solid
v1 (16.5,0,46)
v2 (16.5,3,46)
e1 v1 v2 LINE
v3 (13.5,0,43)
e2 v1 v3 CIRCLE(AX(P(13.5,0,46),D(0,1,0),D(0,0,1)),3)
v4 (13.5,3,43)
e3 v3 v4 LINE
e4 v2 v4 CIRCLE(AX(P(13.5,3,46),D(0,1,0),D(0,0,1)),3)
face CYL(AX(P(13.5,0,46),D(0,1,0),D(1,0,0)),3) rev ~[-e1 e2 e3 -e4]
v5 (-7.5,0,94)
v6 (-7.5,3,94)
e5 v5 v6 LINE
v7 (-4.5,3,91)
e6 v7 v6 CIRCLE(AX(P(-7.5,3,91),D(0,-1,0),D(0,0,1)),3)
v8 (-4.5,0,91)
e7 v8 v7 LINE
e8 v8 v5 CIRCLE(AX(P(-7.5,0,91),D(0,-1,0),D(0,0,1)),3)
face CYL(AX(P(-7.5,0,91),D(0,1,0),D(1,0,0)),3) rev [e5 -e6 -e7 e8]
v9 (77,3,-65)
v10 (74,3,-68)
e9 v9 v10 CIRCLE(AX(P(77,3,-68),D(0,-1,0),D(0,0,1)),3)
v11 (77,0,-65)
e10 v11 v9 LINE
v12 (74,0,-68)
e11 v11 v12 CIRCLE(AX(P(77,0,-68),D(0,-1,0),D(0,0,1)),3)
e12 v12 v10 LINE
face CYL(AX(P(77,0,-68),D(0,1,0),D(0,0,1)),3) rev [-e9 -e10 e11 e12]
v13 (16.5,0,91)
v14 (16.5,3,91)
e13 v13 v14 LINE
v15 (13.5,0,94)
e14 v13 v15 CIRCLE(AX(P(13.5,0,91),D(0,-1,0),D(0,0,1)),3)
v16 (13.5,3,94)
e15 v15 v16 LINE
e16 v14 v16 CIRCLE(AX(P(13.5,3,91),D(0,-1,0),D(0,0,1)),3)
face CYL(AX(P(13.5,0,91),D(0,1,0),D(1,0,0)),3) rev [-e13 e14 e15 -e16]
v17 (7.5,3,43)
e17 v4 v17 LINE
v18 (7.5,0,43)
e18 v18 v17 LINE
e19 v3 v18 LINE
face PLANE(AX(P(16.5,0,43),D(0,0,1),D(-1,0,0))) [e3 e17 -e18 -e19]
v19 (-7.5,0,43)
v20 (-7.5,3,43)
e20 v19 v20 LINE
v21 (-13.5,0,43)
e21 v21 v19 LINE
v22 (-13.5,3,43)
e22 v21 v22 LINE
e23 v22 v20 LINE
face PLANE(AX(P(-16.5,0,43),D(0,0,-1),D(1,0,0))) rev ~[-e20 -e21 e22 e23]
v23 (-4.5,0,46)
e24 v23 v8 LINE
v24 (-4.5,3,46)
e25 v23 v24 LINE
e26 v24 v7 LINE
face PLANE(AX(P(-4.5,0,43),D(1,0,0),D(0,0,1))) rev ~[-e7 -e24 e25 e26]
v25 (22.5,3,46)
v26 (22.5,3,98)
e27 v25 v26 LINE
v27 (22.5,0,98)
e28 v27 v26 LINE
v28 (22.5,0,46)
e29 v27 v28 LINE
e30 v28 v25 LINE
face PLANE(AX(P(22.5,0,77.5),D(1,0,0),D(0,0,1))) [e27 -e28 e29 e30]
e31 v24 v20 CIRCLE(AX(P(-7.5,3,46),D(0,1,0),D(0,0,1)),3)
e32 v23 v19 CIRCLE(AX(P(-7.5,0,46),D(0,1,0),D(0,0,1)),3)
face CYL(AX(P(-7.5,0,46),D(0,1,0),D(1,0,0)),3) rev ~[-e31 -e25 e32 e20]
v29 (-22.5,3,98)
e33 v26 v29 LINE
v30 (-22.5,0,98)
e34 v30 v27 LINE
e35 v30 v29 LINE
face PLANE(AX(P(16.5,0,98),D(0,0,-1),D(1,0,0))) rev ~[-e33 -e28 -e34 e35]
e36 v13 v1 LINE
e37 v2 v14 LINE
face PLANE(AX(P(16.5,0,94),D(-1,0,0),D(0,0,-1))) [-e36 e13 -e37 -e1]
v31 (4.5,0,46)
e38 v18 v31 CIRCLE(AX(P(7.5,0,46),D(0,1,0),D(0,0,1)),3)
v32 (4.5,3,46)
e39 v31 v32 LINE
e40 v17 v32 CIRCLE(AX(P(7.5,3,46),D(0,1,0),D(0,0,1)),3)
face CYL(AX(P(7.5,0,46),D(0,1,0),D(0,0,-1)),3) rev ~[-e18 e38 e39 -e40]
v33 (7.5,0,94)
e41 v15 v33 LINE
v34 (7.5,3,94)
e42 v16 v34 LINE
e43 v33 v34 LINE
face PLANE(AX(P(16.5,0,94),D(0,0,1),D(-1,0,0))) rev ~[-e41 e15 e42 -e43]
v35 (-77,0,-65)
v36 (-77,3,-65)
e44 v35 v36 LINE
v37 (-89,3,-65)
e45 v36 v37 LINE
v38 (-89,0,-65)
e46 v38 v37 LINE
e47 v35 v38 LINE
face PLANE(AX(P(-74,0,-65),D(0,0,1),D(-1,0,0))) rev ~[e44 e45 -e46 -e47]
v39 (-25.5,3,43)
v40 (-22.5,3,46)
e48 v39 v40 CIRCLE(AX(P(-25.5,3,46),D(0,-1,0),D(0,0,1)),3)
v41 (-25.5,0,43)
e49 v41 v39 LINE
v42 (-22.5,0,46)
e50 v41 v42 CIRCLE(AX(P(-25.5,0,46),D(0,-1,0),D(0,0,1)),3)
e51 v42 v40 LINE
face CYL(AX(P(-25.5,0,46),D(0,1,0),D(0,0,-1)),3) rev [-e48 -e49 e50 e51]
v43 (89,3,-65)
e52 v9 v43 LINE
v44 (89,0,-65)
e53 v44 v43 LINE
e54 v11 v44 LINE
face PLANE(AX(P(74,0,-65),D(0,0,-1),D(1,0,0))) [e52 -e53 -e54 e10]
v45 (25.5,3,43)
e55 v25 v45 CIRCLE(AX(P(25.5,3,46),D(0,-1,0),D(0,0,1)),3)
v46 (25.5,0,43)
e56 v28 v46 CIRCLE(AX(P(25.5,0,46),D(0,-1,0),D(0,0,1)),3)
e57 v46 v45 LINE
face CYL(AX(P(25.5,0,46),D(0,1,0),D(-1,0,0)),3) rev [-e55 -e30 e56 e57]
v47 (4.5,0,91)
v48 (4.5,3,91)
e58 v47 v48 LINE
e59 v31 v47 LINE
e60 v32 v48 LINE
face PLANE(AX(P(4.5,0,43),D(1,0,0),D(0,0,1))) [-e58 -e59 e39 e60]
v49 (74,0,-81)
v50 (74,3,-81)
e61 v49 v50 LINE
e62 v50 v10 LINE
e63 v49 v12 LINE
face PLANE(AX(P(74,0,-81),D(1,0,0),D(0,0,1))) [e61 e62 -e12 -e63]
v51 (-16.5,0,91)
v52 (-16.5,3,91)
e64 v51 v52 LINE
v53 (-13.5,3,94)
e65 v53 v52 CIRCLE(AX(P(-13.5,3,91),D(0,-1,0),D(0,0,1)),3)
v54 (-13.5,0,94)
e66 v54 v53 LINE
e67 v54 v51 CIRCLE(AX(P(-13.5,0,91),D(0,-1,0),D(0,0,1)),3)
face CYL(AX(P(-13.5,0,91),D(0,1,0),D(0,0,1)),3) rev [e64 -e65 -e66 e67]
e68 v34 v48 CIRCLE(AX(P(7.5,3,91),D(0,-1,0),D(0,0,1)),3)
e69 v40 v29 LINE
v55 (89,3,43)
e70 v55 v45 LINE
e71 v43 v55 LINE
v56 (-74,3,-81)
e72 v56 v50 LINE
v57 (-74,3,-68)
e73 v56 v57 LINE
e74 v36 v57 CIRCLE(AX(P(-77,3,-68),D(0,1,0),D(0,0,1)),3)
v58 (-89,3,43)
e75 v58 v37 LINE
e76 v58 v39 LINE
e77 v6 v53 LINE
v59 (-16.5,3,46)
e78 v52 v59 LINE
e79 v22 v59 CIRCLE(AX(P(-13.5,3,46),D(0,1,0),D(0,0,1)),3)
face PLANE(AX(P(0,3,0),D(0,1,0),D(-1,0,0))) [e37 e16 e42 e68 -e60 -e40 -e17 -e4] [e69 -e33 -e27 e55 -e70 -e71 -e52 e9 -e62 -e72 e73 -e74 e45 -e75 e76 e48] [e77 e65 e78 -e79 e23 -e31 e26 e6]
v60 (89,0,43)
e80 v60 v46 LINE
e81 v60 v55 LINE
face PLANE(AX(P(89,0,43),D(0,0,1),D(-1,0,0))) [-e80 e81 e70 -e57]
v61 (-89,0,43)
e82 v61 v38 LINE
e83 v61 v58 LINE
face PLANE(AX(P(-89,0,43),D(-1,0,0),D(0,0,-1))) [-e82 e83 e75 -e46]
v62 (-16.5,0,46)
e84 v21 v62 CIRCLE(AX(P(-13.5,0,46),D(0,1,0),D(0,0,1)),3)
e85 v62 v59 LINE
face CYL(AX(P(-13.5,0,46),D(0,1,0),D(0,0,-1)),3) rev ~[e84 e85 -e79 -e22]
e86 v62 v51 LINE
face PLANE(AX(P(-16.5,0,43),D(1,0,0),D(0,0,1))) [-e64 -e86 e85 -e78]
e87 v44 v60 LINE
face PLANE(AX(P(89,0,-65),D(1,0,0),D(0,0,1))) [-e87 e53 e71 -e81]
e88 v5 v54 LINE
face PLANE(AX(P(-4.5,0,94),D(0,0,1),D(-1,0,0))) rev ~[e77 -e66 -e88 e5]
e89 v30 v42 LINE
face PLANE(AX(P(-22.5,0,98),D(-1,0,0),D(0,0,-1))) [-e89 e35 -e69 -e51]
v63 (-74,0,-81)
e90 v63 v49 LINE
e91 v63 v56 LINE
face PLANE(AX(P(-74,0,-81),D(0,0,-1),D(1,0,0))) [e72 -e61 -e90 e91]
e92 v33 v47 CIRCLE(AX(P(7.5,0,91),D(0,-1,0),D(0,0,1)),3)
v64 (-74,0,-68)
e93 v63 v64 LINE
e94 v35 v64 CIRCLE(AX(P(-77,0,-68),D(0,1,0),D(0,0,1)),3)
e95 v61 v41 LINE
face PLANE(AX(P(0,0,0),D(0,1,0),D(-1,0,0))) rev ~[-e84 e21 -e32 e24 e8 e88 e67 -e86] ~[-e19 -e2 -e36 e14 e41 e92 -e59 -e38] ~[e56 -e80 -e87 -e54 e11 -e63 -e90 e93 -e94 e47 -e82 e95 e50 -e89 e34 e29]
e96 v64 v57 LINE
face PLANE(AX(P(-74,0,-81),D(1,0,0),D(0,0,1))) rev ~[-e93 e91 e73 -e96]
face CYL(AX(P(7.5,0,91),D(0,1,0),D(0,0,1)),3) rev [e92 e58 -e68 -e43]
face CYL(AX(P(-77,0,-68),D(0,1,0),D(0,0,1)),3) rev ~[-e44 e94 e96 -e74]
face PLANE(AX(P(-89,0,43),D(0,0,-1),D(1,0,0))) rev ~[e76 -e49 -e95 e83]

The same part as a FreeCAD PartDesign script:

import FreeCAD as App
import Part
import Sketcher
from FreeCAD import Vector
Q = App.Units.Quantity


def edges_at(feature, points):
    """Names of the edges that pass closest to the given points."""
    edges = feature.Shape.Edges
    near = lambda p: min(range(len(edges)), key=lambda i: edges[i].distToShape(Part.Vertex(*p))[0])
    return sorted({f"Edge{near(p) + 1}" for p in points})

doc = App.newDocument("Part")
body = doc.addObject("PartDesign::Body", "Body")

# Sketch on XZ plane
sketch1 = body.newObject("Sketcher::SketchObject", "Sketch")
sketch1.AttachmentSupport = (doc.getObject("XZ_Plane"), [""])
sketch1.MapMode = "FlatFace"
sketch1.addGeometry(Part.LineSegment(Vector(22.5, 98, 0), Vector(22.5, 43, 0)), False)
sketch1.addGeometry(Part.LineSegment(Vector(22.5, 43, 0), Vector(89, 43, 0)), False)
sketch1.addGeometry(Part.LineSegment(Vector(89, 43, 0), Vector(89, -65, 0)), False)
sketch1.addGeometry(Part.LineSegment(Vector(89, -65, 0), Vector(74, -65, 0)), False)
sketch1.addGeometry(Part.LineSegment(Vector(74, -65, 0), Vector(74, -81, 0)), False)
sketch1.addGeometry(Part.LineSegment(Vector(74, -81, 0), Vector(-74, -81, 0)), False)
sketch1.addGeometry(Part.LineSegment(Vector(-74, -81, 0), Vector(-74, -65, 0)), False)
sketch1.addGeometry(Part.LineSegment(Vector(-74, -65, 0), Vector(-89, -65, 0)), False)
sketch1.addGeometry(Part.LineSegment(Vector(-89, -65, 0), Vector(-89, 43, 0)), False)
sketch1.addGeometry(Part.LineSegment(Vector(-89, 43, 0), Vector(-22.5, 43, 0)), False)
sketch1.addGeometry(Part.LineSegment(Vector(-22.5, 43, 0), Vector(-22.5, 98, 0)), False)
sketch1.addGeometry(Part.LineSegment(Vector(-22.5, 98, 0), Vector(22.5, 98, 0)), False)
sketch1.addGeometry(Part.LineSegment(Vector(16.5, 94, 0), Vector(4.5, 94, 0)), False)
sketch1.addGeometry(Part.LineSegment(Vector(4.5, 94, 0), Vector(4.5, 43, 0)), False)
sketch1.addGeometry(Part.LineSegment(Vector(4.5, 43, 0), Vector(16.5, 43, 0)), False)
sketch1.addGeometry(Part.LineSegment(Vector(16.5, 43, 0), Vector(16.5, 94, 0)), False)
sketch1.addGeometry(Part.LineSegment(Vector(-4.5, 43, 0), Vector(-4.5, 94, 0)), False)
sketch1.addGeometry(Part.LineSegment(Vector(-4.5, 94, 0), Vector(-16.5, 94, 0)), False)
sketch1.addGeometry(Part.LineSegment(Vector(-16.5, 94, 0), Vector(-16.5, 43, 0)), False)
sketch1.addGeometry(Part.LineSegment(Vector(-16.5, 43, 0), Vector(-4.5, 43, 0)), False)
sketch1.addConstraint(Sketcher.Constraint("Coincident", 0, 2, 1, 1))
sketch1.addConstraint(Sketcher.Constraint("Coincident", 1, 2, 2, 1))
sketch1.addConstraint(Sketcher.Constraint("Coincident", 2, 2, 3, 1))
sketch1.addConstraint(Sketcher.Constraint("Coincident", 3, 2, 4, 1))
sketch1.addConstraint(Sketcher.Constraint("Coincident", 4, 2, 5, 1))
sketch1.addConstraint(Sketcher.Constraint("Coincident", 5, 2, 6, 1))
sketch1.addConstraint(Sketcher.Constraint("Coincident", 6, 2, 7, 1))
sketch1.addConstraint(Sketcher.Constraint("Coincident", 7, 2, 8, 1))
sketch1.addConstraint(Sketcher.Constraint("Coincident", 8, 2, 9, 1))
sketch1.addConstraint(Sketcher.Constraint("Coincident", 9, 2, 10, 1))
sketch1.addConstraint(Sketcher.Constraint("Coincident", 10, 2, 11, 1))
sketch1.addConstraint(Sketcher.Constraint("Coincident", 11, 2, 0, 1))
sketch1.addConstraint(Sketcher.Constraint("Coincident", 12, 2, 13, 1))
sketch1.addConstraint(Sketcher.Constraint("Coincident", 13, 2, 14, 1))
sketch1.addConstraint(Sketcher.Constraint("Coincident", 14, 2, 15, 1))
sketch1.addConstraint(Sketcher.Constraint("Coincident", 15, 2, 12, 1))
sketch1.addConstraint(Sketcher.Constraint("Coincident", 16, 2, 17, 1))
sketch1.addConstraint(Sketcher.Constraint("Coincident", 17, 2, 18, 1))
sketch1.addConstraint(Sketcher.Constraint("Coincident", 18, 2, 19, 1))
sketch1.addConstraint(Sketcher.Constraint("Coincident", 19, 2, 16, 1))
sketch1.addConstraint(Sketcher.Constraint("Vertical", 0))
sketch1.addConstraint(Sketcher.Constraint("Horizontal", 1))
sketch1.addConstraint(Sketcher.Constraint("Vertical", 2))
sketch1.addConstraint(Sketcher.Constraint("Horizontal", 3))
sketch1.addConstraint(Sketcher.Constraint("Vertical", 4))
sketch1.addConstraint(Sketcher.Constraint("Horizontal", 5))
sketch1.addConstraint(Sketcher.Constraint("Vertical", 6))
sketch1.addConstraint(Sketcher.Constraint("Horizontal", 7))
sketch1.addConstraint(Sketcher.Constraint("Vertical", 8))
sketch1.addConstraint(Sketcher.Constraint("Horizontal", 9))
sketch1.addConstraint(Sketcher.Constraint("Vertical", 10))
sketch1.addConstraint(Sketcher.Constraint("Horizontal", 11))
sketch1.addConstraint(Sketcher.Constraint("Horizontal", 12))
sketch1.addConstraint(Sketcher.Constraint("Vertical", 13))
sketch1.addConstraint(Sketcher.Constraint("Horizontal", 14))
sketch1.addConstraint(Sketcher.Constraint("Vertical", 15))
sketch1.addConstraint(Sketcher.Constraint("Vertical", 16))
sketch1.addConstraint(Sketcher.Constraint("Horizontal", 17))
sketch1.addConstraint(Sketcher.Constraint("Vertical", 18))
sketch1.addConstraint(Sketcher.Constraint("Horizontal", 19))
sketch1.addConstraint(Sketcher.Constraint("Symmetric", 3, 2, 6, 2, -2))
sketch1.addConstraint(Sketcher.Constraint("Symmetric", 1, 2, 8, 2, -2))
sketch1.addConstraint(Sketcher.Constraint("Symmetric", 12, 2, 16, 2, -2))
sketch1.addConstraint(Sketcher.Constraint("Symmetric", 14, 2, 18, 2, -2))
sketch1.addConstraint(Sketcher.Constraint("Horizontal", 9, 2, 13, 2))
sketch1.addConstraint(Sketcher.Constraint("Equal", 1, 9))
sketch1.addConstraint(Sketcher.Constraint("DistanceX", 3, 2, 3, 1, Q("15 mm")))
sketch1.addConstraint(Sketcher.Constraint("DistanceY", 0, 2, 0, 1, Q("55 mm")))
sketch1.addConstraint(Sketcher.Constraint("DistanceY", 4, 2, 4, 1, Q("16 mm")))
sketch1.addConstraint(Sketcher.Constraint("DistanceX", 8, 2, 1, 2, Q("178 mm")))
sketch1.addConstraint(Sketcher.Constraint("DistanceX", 12, 2, 11, 2, Q("18 mm")))
sketch1.addConstraint(Sketcher.Constraint("DistanceY", 12, 2, 11, 2, Q("4 mm")))
sketch1.addConstraint(Sketcher.Constraint("DistanceX", 14, 2, 0, 2, Q("6 mm")))
sketch1.addConstraint(Sketcher.Constraint("DistanceX", 16, 2, 12, 2, Q("9 mm")))
sketch1.addConstraint(Sketcher.Constraint("DistanceY", 2, 2, 2, 1, Q("108 mm")))
sketch1.addConstraint(Sketcher.Constraint("DistanceY", -1, 1, 0, 2, Q("43 mm")))
pad1 = body.newObject("PartDesign::Pad", "Pad")
pad1.Profile = sketch1
pad1.Length = 3
pad1.Reversed = True
doc.recompute()

fillet = body.newObject("PartDesign::Fillet", "Fillet")
fillet.Base = (pad1, edges_at(pad1, [
    (22.5, 1.5, 43),
    (-22.5, 1.5, 43),
    (-16.5, 1.5, 43),
    (-4.5, 1.5, 43),
    (4.5, 1.5, 43),
    (16.5, 1.5, 43),
]))
fillet.Radius = 3
doc.recompute()

fillet2 = body.newObject("PartDesign::Fillet", "Fillet001")
fillet2.Base = (fillet, edges_at(fillet, [(74, 1.5, -65), (-74, 1.5, -65)]))
fillet2.Radius = 3
doc.recompute()

fillet3 = body.newObject("PartDesign::Fillet", "Fillet002")
fillet3.Base = (fillet2, edges_at(fillet2, [
    (16.5, 1.5, 94),
    (4.5, 1.5, 94),
    (-4.5, 1.5, 94),
    (-16.5, 1.5, 94),
]))
fillet3.Radius = 3

doc.recompute()
